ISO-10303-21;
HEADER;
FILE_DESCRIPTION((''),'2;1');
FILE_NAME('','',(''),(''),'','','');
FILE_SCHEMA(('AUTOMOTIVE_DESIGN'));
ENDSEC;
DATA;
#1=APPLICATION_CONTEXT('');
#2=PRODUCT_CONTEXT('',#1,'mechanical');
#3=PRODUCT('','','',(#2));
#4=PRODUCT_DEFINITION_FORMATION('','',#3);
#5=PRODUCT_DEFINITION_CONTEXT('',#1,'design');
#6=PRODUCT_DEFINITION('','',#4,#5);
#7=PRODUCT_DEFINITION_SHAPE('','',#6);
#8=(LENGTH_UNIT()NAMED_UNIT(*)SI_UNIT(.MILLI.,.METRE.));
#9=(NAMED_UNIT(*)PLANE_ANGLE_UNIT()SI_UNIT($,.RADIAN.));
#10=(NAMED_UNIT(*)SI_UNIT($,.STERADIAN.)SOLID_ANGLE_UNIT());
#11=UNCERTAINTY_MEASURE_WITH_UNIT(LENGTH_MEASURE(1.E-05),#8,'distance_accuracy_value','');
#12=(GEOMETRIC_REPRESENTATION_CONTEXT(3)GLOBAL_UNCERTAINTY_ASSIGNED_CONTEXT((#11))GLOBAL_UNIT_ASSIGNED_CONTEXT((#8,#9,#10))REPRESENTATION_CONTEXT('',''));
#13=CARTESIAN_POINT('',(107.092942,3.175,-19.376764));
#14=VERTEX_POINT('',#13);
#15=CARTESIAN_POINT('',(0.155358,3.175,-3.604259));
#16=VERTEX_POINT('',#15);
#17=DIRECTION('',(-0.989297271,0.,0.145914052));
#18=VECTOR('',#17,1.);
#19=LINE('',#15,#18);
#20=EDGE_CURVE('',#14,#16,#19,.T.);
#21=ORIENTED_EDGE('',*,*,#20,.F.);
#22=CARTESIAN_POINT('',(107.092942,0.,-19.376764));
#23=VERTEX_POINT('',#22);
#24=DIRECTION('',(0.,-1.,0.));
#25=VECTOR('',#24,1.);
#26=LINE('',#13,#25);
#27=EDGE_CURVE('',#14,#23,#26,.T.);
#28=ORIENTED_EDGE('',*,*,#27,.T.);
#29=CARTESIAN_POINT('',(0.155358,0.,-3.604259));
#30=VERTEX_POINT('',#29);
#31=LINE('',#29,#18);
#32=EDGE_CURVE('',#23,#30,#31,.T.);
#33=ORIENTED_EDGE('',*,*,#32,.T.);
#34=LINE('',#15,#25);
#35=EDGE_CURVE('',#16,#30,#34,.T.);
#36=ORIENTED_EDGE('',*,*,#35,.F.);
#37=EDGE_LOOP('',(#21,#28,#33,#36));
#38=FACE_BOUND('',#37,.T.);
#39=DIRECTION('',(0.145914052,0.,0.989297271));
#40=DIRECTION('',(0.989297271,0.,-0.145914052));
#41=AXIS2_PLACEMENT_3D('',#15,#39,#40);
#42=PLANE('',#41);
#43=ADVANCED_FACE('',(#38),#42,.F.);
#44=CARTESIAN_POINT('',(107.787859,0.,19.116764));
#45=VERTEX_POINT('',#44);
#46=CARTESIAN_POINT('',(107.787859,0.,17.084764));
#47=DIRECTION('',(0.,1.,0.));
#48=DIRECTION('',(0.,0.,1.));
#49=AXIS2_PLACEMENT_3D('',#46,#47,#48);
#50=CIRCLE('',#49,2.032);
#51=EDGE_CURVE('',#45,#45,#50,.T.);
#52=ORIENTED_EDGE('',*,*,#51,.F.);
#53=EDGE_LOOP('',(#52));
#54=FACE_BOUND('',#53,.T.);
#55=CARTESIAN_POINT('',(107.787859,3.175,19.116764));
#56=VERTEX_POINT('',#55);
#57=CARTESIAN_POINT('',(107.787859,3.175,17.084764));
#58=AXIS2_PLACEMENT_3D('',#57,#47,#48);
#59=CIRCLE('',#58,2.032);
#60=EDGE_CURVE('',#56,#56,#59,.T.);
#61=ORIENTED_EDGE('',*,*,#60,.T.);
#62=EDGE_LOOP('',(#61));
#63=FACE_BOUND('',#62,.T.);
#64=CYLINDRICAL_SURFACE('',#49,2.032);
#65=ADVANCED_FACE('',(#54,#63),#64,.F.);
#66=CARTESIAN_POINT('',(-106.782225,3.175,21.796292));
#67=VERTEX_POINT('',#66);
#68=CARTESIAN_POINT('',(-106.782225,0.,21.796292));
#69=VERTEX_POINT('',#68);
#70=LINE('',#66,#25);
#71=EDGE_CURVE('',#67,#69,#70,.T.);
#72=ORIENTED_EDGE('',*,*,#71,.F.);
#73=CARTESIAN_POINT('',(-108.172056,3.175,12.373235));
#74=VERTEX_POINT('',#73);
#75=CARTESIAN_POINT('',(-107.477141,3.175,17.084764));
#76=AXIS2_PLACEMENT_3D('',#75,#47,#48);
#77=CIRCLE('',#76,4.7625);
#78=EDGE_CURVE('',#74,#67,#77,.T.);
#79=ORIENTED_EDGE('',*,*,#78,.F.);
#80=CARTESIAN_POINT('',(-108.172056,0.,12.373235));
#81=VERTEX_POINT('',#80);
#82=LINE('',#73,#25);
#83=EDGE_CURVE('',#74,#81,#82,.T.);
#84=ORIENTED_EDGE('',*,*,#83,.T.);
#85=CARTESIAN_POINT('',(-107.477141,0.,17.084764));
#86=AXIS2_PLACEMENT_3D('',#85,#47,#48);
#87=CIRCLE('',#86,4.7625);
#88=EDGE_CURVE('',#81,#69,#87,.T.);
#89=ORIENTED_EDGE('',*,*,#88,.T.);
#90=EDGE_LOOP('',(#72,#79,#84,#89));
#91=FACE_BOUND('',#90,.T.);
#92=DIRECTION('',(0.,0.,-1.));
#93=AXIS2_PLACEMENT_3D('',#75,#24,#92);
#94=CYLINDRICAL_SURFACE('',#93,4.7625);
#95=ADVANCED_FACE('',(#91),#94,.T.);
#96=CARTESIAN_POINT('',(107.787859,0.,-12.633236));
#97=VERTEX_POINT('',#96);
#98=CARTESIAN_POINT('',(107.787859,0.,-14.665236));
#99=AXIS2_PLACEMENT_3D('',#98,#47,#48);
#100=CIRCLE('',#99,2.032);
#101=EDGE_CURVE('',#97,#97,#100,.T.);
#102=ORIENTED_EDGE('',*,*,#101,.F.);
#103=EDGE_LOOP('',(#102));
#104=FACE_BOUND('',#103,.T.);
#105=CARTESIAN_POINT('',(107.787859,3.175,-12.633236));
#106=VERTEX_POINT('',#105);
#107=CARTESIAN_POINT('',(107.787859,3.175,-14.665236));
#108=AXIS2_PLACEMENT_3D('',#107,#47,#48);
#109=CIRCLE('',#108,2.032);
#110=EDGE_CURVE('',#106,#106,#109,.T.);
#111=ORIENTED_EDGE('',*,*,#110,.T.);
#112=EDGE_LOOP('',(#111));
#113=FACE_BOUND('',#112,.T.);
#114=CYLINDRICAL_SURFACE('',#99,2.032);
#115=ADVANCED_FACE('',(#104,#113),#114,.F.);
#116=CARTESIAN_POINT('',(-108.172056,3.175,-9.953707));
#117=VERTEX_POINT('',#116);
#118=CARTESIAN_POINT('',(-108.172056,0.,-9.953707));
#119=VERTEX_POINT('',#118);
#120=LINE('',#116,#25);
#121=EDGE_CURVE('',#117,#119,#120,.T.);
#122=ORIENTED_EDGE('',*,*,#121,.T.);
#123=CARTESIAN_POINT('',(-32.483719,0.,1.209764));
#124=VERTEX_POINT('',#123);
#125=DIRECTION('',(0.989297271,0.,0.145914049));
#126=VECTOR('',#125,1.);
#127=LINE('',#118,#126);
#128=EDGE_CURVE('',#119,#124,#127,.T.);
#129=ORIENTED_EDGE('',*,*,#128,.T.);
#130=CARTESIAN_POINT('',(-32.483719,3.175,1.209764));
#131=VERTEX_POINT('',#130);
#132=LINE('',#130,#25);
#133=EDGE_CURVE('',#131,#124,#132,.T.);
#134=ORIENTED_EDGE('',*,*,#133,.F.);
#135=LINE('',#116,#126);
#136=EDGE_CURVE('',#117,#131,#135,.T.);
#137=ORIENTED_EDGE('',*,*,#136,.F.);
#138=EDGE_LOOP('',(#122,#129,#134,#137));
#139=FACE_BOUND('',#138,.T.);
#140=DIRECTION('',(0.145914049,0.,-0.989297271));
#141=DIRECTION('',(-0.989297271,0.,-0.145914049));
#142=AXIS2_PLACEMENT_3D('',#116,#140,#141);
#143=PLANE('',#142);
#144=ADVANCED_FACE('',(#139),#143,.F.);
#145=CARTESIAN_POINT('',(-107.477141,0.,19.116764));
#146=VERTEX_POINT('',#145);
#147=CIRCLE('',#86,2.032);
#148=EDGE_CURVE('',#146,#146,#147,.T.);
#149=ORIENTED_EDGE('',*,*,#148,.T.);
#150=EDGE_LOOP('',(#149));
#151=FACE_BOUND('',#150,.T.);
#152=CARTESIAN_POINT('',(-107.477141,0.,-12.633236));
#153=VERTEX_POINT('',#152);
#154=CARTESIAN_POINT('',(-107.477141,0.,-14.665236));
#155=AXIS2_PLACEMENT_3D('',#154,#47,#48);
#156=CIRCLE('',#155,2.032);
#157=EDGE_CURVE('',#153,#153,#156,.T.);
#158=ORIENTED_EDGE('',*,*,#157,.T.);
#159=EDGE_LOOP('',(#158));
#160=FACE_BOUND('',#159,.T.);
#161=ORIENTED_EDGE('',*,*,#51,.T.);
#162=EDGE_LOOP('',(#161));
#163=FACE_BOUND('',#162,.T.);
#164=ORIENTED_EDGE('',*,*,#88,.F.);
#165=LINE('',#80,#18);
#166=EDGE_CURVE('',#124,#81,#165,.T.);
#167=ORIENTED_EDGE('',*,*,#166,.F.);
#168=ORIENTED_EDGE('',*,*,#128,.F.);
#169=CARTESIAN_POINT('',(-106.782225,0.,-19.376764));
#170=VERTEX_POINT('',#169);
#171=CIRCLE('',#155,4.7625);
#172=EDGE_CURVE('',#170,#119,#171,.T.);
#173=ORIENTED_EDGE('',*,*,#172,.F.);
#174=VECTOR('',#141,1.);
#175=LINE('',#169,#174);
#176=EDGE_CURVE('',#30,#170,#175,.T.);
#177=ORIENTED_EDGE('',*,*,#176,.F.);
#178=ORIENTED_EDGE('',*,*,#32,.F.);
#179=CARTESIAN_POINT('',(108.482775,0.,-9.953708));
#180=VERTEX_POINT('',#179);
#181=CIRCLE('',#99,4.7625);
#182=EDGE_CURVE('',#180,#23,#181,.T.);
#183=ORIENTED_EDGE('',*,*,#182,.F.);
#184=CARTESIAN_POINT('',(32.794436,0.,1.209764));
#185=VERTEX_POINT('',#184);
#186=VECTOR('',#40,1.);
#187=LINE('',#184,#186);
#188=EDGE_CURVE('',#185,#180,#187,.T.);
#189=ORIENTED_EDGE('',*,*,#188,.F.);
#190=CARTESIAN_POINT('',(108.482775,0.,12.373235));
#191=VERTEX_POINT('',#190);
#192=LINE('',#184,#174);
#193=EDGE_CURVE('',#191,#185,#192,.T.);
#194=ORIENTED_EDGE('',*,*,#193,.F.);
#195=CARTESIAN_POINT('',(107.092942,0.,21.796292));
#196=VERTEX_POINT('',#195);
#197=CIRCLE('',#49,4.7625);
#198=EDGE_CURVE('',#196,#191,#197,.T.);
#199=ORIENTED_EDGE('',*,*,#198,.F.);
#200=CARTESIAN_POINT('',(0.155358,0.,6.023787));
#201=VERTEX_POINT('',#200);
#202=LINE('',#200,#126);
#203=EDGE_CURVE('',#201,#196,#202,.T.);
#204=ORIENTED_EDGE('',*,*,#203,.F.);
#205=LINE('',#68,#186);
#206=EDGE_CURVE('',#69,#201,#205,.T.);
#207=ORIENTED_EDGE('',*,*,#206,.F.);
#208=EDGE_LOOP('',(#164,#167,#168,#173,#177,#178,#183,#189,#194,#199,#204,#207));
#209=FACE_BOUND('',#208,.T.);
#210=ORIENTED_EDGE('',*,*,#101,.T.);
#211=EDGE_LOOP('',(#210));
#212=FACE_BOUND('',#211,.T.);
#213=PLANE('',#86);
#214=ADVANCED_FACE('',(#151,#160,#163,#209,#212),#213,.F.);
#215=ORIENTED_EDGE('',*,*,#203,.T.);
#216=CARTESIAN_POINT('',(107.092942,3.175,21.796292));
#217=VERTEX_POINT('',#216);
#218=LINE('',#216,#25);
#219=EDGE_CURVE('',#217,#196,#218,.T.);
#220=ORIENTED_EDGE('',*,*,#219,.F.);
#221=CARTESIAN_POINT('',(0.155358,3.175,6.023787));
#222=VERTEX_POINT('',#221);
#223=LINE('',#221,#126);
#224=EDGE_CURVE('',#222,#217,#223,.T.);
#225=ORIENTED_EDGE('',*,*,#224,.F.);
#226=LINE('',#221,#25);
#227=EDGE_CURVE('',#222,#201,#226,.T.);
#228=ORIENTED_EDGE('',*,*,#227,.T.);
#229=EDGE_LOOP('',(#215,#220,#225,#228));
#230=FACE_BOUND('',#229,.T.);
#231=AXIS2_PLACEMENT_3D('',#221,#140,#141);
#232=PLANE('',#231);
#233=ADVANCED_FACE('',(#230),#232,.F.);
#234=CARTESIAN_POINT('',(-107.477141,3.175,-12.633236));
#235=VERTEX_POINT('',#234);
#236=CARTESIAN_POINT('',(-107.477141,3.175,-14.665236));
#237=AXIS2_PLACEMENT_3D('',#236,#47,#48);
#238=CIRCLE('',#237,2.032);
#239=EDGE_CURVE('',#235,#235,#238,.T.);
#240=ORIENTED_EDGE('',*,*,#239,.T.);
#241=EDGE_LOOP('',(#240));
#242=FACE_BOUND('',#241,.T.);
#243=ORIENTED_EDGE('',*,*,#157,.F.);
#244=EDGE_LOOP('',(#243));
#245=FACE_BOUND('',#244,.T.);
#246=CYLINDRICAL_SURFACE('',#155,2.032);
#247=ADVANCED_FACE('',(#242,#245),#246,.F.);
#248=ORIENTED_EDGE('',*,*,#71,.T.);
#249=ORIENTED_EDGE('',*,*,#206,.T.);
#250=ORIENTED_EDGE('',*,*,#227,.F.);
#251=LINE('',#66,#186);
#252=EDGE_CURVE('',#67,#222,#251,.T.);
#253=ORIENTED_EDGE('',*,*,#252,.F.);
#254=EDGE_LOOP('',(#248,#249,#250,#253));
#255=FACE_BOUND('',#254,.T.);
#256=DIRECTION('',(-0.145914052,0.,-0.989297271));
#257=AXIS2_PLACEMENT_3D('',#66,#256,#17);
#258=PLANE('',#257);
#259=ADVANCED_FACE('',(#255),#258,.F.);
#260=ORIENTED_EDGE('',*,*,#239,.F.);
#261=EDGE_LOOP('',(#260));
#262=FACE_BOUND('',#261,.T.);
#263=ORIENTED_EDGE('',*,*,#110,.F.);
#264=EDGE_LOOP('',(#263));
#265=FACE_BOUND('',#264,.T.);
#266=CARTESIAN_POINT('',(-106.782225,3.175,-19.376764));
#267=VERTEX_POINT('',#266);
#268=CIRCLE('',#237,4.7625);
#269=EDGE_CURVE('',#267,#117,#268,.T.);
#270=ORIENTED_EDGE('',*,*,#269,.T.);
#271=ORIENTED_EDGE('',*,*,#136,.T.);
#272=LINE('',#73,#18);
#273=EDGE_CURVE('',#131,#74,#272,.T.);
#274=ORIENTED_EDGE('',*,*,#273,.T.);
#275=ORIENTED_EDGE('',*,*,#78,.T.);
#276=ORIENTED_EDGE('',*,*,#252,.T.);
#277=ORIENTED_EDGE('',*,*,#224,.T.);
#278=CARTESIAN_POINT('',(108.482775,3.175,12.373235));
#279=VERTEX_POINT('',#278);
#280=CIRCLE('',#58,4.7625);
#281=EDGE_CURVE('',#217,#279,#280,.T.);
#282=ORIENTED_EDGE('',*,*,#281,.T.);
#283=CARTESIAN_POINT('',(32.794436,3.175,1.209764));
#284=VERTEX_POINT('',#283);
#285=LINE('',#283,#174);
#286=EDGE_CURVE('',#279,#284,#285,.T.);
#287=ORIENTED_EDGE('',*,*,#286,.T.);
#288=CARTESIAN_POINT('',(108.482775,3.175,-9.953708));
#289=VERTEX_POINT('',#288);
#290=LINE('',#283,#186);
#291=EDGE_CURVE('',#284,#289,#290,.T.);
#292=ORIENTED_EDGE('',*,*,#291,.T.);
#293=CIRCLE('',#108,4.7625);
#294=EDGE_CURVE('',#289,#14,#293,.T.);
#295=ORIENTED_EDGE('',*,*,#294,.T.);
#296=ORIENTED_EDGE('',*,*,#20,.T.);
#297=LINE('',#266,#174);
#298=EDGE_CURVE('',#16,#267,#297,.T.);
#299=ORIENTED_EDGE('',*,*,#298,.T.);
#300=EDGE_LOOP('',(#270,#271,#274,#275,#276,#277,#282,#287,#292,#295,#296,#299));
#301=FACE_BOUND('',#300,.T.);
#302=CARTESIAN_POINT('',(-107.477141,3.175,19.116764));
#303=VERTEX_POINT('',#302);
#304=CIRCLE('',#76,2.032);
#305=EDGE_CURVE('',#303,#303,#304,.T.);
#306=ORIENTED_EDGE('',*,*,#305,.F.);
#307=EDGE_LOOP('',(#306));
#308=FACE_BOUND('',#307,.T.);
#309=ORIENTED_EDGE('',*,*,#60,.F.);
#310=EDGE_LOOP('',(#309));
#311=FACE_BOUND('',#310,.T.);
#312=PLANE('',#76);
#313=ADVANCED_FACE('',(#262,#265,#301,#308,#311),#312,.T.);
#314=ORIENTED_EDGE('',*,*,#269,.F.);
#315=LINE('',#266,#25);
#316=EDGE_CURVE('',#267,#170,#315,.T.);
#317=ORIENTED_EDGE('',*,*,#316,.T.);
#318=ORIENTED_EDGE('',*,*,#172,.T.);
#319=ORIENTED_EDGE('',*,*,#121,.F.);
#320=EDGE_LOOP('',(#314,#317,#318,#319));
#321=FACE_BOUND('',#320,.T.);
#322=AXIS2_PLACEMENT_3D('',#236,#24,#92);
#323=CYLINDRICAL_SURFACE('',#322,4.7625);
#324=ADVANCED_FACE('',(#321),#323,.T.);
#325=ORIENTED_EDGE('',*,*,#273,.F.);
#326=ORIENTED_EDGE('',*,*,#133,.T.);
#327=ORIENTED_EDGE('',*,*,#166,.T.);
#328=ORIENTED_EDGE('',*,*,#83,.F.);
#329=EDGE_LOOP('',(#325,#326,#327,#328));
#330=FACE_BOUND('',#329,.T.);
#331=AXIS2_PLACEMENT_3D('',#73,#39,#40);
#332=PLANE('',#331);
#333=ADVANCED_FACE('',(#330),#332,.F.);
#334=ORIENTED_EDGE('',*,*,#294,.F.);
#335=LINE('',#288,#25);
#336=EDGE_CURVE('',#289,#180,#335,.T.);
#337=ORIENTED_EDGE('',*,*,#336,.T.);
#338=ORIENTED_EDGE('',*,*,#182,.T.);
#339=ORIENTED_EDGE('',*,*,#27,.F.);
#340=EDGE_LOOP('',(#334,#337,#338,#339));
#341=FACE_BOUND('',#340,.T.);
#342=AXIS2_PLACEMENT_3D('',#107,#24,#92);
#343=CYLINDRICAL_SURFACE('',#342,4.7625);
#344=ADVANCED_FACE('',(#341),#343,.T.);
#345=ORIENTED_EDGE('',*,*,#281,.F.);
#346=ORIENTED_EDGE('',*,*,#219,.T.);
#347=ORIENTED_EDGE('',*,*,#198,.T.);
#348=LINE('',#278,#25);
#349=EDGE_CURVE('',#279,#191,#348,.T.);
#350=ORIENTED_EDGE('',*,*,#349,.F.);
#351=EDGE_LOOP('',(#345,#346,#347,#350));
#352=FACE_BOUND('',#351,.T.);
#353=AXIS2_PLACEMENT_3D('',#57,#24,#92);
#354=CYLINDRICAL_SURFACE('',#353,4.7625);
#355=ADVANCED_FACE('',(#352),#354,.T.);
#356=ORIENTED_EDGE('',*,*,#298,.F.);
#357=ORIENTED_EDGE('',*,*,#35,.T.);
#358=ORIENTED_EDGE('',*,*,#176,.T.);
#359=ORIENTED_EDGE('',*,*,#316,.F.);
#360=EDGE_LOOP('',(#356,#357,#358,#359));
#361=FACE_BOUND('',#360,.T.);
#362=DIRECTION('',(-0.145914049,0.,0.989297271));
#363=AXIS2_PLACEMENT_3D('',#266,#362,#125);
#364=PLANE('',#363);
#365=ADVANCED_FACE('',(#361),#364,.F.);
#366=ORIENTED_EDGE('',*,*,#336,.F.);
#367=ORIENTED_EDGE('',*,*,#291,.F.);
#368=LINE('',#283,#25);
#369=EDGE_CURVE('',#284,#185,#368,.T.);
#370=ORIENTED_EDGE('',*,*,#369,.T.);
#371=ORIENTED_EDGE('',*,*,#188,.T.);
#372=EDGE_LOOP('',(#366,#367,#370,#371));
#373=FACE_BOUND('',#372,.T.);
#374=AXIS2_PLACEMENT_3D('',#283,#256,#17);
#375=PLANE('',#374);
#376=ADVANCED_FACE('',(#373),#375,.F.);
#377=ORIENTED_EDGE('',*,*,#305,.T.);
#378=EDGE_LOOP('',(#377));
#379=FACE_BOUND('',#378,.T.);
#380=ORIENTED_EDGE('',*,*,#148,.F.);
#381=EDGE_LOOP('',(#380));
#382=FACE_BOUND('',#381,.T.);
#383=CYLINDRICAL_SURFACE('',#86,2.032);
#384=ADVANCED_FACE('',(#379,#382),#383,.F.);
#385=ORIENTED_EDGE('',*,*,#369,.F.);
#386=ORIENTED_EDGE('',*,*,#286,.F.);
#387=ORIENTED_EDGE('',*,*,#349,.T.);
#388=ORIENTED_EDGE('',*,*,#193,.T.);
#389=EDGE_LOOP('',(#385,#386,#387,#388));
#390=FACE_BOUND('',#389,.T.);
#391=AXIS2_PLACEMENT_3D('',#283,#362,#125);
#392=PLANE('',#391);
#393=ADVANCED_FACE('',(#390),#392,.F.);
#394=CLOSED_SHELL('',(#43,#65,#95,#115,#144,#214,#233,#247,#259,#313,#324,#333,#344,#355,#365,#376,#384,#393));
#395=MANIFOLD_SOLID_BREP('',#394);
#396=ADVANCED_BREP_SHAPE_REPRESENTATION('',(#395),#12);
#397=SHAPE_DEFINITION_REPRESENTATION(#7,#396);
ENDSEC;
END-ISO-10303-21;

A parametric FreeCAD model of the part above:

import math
import FreeCAD as App
import Part
import Sketcher

V = App.Vector
Q = App.Units.Quantity

doc = App.newDocument("Part")
params = doc.addObject("Spreadsheet::Sheet", "Params")
for row, (alias, value) in enumerate([
    ("sketch1_radius", "0.1875 in"),
    ("sketch1_radius2", "0.1875 in"),
    ("sketch1_radius3", "0.1875 in"),
    ("sketch1_radius4", "0.1875 in"),
    ("pad1_length", "0.125 in"),
    ("sketch2_diameter", "0.16 in"),
], start=1):
    params.set(f"A{row}", alias)
    params.set(f"B{row}", "=" + value)
    params.setAlias(f"B{row}", alias)

body = doc.addObject("PartDesign::Body", "Body")

sketch1 = doc.addObject("Sketcher::SketchObject", "Sketch")
body.addObject(sketch1)
sketch1.AttachmentSupport = (doc.XZ_Plane, [""])
sketch1.MapMode = "FlatFace"
sketch1.addGeometry([
    Part.LineSegment(V(-32.483719, 1.209764, 0), V(-108.172056, 12.373235, 0)),
    Part.ArcOfCircle(Part.Circle(V(-107.477141, 17.084764, 0), V(0, 0, 1), 4.7625), math.radians(81.609789), math.radians(261.609787)),
    Part.LineSegment(V(-106.782225, 21.796292, 0), V(0.155358, 6.023787, 0)),
    Part.LineSegment(V(0.155358, 6.023787, 0), V(107.092942, 21.796292, 0)),
    Part.ArcOfCircle(Part.Circle(V(107.787859, 17.084764, 0), V(0, 0, 1), 4.7625), math.radians(-81.609787), math.radians(98.390239)),
    Part.LineSegment(V(108.482775, 12.373235, 0), V(32.794436, 1.209764, 0)),
    Part.LineSegment(V(32.794436, 1.209764, 0), V(108.482775, -9.953708, 0)),
    Part.ArcOfCircle(Part.Circle(V(107.787859, -14.665236, 0), V(0, 0, 1), 4.7625), math.radians(-98.390239), math.radians(81.609787)),
    Part.LineSegment(V(107.092942, -19.376764, 0), V(0.155358, -3.604259, 0)),
    Part.LineSegment(V(0.155358, -3.604259, 0), V(-106.782225, -19.376764, 0)),
    Part.ArcOfCircle(Part.Circle(V(-107.477141, -14.665236, 0), V(0, 0, 1), 4.7625), math.radians(98.390213), math.radians(278.39021)),
    Part.LineSegment(V(-108.172056, -9.953707, 0), V(-32.483719, 1.209764, 0)),
], False)
sketch1.addConstraint([
    Sketcher.Constraint("Coincident", 0, 2, 1, 2),
    Sketcher.Constraint("Coincident", 1, 1, 2, 1),
    Sketcher.Constraint("Coincident", 2, 2, 3, 1),
    Sketcher.Constraint("Coincident", 3, 2, 4, 2),
    Sketcher.Constraint("Coincident", 4, 1, 5, 1),
    Sketcher.Constraint("Coincident", 5, 2, 6, 1),
    Sketcher.Constraint("Coincident", 6, 2, 7, 2),
    Sketcher.Constraint("Coincident", 7, 1, 8, 1),
    Sketcher.Constraint("Coincident", 8, 2, 9, 1),
    Sketcher.Constraint("Coincident", 9, 2, 10, 2),
    Sketcher.Constraint("Coincident", 10, 1, 11, 1),
    Sketcher.Constraint("Coincident", 11, 2, 0, 1),
    Sketcher.Constraint("Radius", 1, Q("0.1875 in")),
    Sketcher.Constraint("Radius", 4, Q("0.1875 in")),
    Sketcher.Constraint("Radius", 7, Q("0.1875 in")),
    Sketcher.Constraint("Radius", 10, Q("0.1875 in")),
    Sketcher.Constraint("DistanceY", 7, 3, 4, 3, Q("1.25 in")),
    Sketcher.Constraint("DistanceY", 7, 3, 1, 3, Q("1.25 in")),
    Sketcher.Constraint("DistanceY", 10, 3, 1, 3, Q("1.25 in")),
    Sketcher.Constraint("DistanceY", 6, 2, 3, 2, Q("1.25 in")),
    Sketcher.Constraint("DistanceY", 7, 1, 4, 1, Q("1.25 in")),
    Sketcher.Constraint("DistanceY", 9, 2, 0, 2, Q("1.25 in")),
    Sketcher.Constraint("DistanceY", 10, 1, 1, 1, Q("1.25 in")),
    Sketcher.Constraint("DistanceX", 1, 3, 4, 3, Q("8.475 in")),
    Sketcher.Constraint("DistanceX", 1, 3, 7, 3, Q("8.475 in")),
    Sketcher.Constraint("DistanceX", 10, 3, 7, 3, Q("8.475 in")),
    Sketcher.Constraint("DistanceX", 1, 1, 4, 1, Q("8.475 in")),
    Sketcher.Constraint("DistanceY", 5, 2, 4, 3, Q("0.625 in")),
    Sketcher.Constraint("DistanceY", 8, 2, -1, 1, Q("0.1419 in")),
    Sketcher.Constraint("DistanceX", 1, 3, 2, 2, Q("4.2375 in")),
    Sketcher.Constraint("DistanceX", 10, 3, 8, 2, Q("4.2375 in")),
    Sketcher.Constraint("Distance", 2, Q("108.094489 mm")),
    Sketcher.Constraint("Distance", 3, Q("108.094489 mm")),
    Sketcher.Constraint("Distance", 8, Q("108.094489 mm")),
    Sketcher.Constraint("Distance", 9, Q("108.094489 mm")),
    Sketcher.Constraint("DistanceX", 1, 3, -1, 1, Q("107.477141 mm")),
    Sketcher.Constraint("DistanceY", -1, 1, 1, 1, Q("21.796292 mm")),
    Sketcher.Constraint("DistanceX", 11, 2, -1, 1, Q("32.483719 mm")),
    Sketcher.Constraint("DistanceX", 5, 2, 4, 1, Q("75.688339 mm")),
    Sketcher.Constraint("DistanceY", 10, 1, 11, 2, Q("11.163471 mm")),
])
sketch1.setExpression("Constraints[12]", "Params.sketch1_radius")
sketch1.setExpression("Constraints[13]", "Params.sketch1_radius2")
sketch1.setExpression("Constraints[14]", "Params.sketch1_radius3")
sketch1.setExpression("Constraints[15]", "Params.sketch1_radius4")
pad1 = doc.addObject("PartDesign::Pad", "Pad")
body.addObject(pad1)
pad1.Profile = sketch1
pad1.setExpression("Length", "Params.pad1_length")
pad1.Reversed = True

sketch2 = doc.addObject("Sketcher::SketchObject", "Sketch001")
body.addObject(sketch2)
sketch2.AttachmentSupport = (doc.XZ_Plane, [""])
sketch2.MapMode = "FlatFace"
sketch2.AttachmentOffset = App.Placement(V(0, 0, -0.125 * 25.4), App.Rotation())
sketch2.addGeometry([
    Part.Circle(V(-107.477141, -14.665236, 0), V(0, 0, 1), 2.032),
    Part.Circle(V(-107.477141, 17.084764, 0), V(0, 0, 1), 2.032),
    Part.Circle(V(107.787859, -14.665236, 0), V(0, 0, 1), 2.032),
    Part.Circle(V(107.787859, 17.084764, 0), V(0, 0, 1), 2.032),
], False)
sketch2.addConstraint([
    Sketcher.Constraint("Equal", 0, 1),
    Sketcher.Constraint("Equal", 1, 2),
    Sketcher.Constraint("Equal", 2, 3),
    Sketcher.Constraint("Horizontal", 0, 3, 2, 3),
    Sketcher.Constraint("Horizontal", 1, 3, 3, 3),
    Sketcher.Constraint("Vertical", 0, 3, 1, 3),
    Sketcher.Constraint("Vertical", 2, 3, 3, 3),
    Sketcher.Constraint("Diameter", 0, Q("0.16 in")),
    Sketcher.Constraint("DistanceY", 0, 3, 1, 3, Q("1.25 in")),
    Sketcher.Constraint("DistanceX", 0, 3, 2, 3, Q("8.475 in")),
    Sketcher.Constraint("DistanceX", 0, 3, -1, 1, Q("107.477141 mm")),
    Sketcher.Constraint("DistanceY", 0, 3, -1, 1, Q("14.665236 mm")),
])
sketch2.setExpression("Constraints[7]", "Params.sketch2_diameter")
pocket1 = doc.addObject("PartDesign::Pocket", "Pocket")
body.addObject(pocket1)
pocket1.Profile = sketch2
pocket1.Type = "ThroughAll"
pocket1.Reversed = True

doc.recompute()
